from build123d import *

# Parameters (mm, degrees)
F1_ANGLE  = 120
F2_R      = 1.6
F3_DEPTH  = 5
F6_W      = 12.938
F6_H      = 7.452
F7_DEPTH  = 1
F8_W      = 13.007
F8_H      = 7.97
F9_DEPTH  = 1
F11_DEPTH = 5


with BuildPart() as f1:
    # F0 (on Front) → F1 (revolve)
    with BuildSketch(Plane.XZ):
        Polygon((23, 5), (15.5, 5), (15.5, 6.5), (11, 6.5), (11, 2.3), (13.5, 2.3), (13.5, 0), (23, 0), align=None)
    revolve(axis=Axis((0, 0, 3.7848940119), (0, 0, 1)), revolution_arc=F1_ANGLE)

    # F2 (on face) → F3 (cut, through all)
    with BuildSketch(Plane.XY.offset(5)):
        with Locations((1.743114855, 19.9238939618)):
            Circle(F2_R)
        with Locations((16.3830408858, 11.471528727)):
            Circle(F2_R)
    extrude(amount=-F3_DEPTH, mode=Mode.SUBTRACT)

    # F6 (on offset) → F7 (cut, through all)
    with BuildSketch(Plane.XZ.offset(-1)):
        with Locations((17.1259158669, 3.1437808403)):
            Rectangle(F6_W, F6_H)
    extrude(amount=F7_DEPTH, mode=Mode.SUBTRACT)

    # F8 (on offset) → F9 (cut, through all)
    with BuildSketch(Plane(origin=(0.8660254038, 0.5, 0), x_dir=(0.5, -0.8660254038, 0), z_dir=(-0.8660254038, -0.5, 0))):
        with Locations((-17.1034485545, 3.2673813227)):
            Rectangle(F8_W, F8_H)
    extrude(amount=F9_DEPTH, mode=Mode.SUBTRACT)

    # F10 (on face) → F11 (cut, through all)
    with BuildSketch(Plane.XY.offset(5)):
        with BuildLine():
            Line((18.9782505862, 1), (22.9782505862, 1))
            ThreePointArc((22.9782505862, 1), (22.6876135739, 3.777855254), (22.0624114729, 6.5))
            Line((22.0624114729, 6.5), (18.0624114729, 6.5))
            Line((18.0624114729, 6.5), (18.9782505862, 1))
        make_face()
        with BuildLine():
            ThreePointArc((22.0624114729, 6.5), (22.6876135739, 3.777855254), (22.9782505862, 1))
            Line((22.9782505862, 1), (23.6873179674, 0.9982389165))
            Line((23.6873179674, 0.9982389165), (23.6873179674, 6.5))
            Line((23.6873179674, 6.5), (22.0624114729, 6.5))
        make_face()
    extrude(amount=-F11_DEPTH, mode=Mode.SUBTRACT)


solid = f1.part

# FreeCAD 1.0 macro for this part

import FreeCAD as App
import Part
import Sketcher
from FreeCAD import Vector
Q = App.Units.Quantity

doc = App.newDocument("Part")
body = doc.addObject("PartDesign::Body", "Body")

# Sketch on XZ plane
sketch1 = body.newObject("Sketcher::SketchObject", "Sketch")
sketch1.AttachmentSupport = (doc.getObject("XZ_Plane"), [""])
sketch1.MapMode = "FlatFace"
sketch1.addGeometry([
    Part.LineSegment(Vector(23, 5, 0), Vector(15.5, 5, 0)),  # 0
    Part.LineSegment(Vector(15.5, 5, 0), Vector(15.5, 6.5, 0)),  # 1
    Part.LineSegment(Vector(15.5, 6.5, 0), Vector(11, 6.5, 0)),  # 2
    Part.LineSegment(Vector(11, 6.5, 0), Vector(11, 2.3, 0)),  # 3
    Part.LineSegment(Vector(11, 2.3, 0), Vector(13.5, 2.3, 0)),  # 4
    Part.LineSegment(Vector(13.5, 2.3, 0), Vector(13.5, 0, 0)),  # 5
    Part.LineSegment(Vector(13.5, 0, 0), Vector(23, 0, 0)),  # 6
    Part.LineSegment(Vector(23, 0, 0), Vector(23, 5, 0)),  # 7
], False)
sketch1.addConstraint([
    Sketcher.Constraint("Coincident", 0, 2, 1, 1),
    Sketcher.Constraint("Coincident", 1, 2, 2, 1),
    Sketcher.Constraint("Coincident", 2, 2, 3, 1),
    Sketcher.Constraint("Coincident", 3, 2, 4, 1),
    Sketcher.Constraint("Coincident", 4, 2, 5, 1),
    Sketcher.Constraint("Coincident", 5, 2, 6, 1),
    Sketcher.Constraint("Coincident", 6, 2, 7, 1),
    Sketcher.Constraint("Coincident", 7, 2, 0, 1),
    Sketcher.Constraint("Horizontal", 0),
    Sketcher.Constraint("Vertical", 1),
    Sketcher.Constraint("Horizontal", 2),
    Sketcher.Constraint("Vertical", 3),
    Sketcher.Constraint("Horizontal", 4),
    Sketcher.Constraint("Vertical", 5),
    Sketcher.Constraint("Horizontal", 6),
    Sketcher.Constraint("Vertical", 7),
    Sketcher.Constraint("PointOnObject", 5, 2, -1),
    Sketcher.Constraint("DistanceY", 7, 1, 7, 2, Q("5 mm")),
    Sketcher.Constraint("DistanceX", 0, 2, 0, 1, Q("7.5 mm")),
    Sketcher.Constraint("DistanceX", 2, 2, 2, 1, Q("4.5 mm")),
    Sketcher.Constraint("DistanceX", 4, 1, 4, 2, Q("2.5 mm")),
    Sketcher.Constraint("DistanceY", 1, 1, 1, 2, Q("1.5 mm")),
    Sketcher.Constraint("DistanceY", 3, 2, 3, 1, Q("4.2 mm")),
    Sketcher.Constraint("DistanceX", -1, 1, 2, 2, Q("11 mm")),
])
revolution = body.newObject("PartDesign::Revolution", "Revolution")
revolution.Profile = sketch1
revolution.ReferenceAxis = (sketch1, ["V_Axis"])
revolution.Angle = 120

# Sketch on XY plane
sketch2 = body.newObject("Sketcher::SketchObject", "Sketch001")
sketch2.AttachmentSupport = (doc.getObject("XY_Plane"), [""])
sketch2.MapMode = "FlatFace"
sketch2.AttachmentOffset = App.Placement(Vector(0, 0, 5), App.Rotation())
sketch2.addGeometry([
    Part.Circle(Vector(1.7, 19.9, 0), Vector(0, 0, 1), 1.6),
    Part.Circle(Vector(16.4, 11.5, 0), Vector(0, 0, 1), 1.6),
], False)
sketch2.addConstraint([
    Sketcher.Constraint("Equal", 0, 1),
    Sketcher.Constraint("Diameter", 0, Q("3.2 mm")),
    Sketcher.Constraint("DistanceX", -1, 1, 1, 3, Q("16.383041 mm")),
    Sketcher.Constraint("DistanceY", -1, 1, 1, 3, Q("11.471529 mm")),
    Sketcher.Constraint("DistanceX", -1, 1, 0, 3, Q("1.743115 mm")),
    Sketcher.Constraint("DistanceY", -1, 1, 0, 3, Q("19.923894 mm")),
])
pocket1 = body.newObject("PartDesign::Pocket", "Pocket")
pocket1.Profile = sketch2
pocket1.Type = "ThroughAll"

# Sketch on XZ plane
sketch3 = body.newObject("Sketcher::SketchObject", "Sketch002")
sketch3.AttachmentSupport = (doc.getObject("XZ_Plane"), [""])
sketch3.MapMode = "FlatFace"
sketch3.AttachmentOffset = App.Placement(Vector(0, 0, -1), App.Rotation())
sketch3.addGeometry([
    Part.LineSegment(Vector(11, 7, 0), Vector(11, -1, 0)),
    Part.LineSegment(Vector(11, -1, 0), Vector(24, -1, 0)),
    Part.LineSegment(Vector(24, -1, 0), Vector(24, 7, 0)),
    Part.LineSegment(Vector(24, 7, 0), Vector(11, 7, 0)),
], False)
sketch3.addConstraint([
    Sketcher.Constraint("Coincident", 0, 2, 1, 1),
    Sketcher.Constraint("Coincident", 1, 2, 2, 1),
    Sketcher.Constraint("Coincident", 2, 2, 3, 1),
    Sketcher.Constraint("Coincident", 3, 2, 0, 1),
    Sketcher.Constraint("Vertical", 0),
    Sketcher.Constraint("Horizontal", 1),
    Sketcher.Constraint("Vertical", 2),
    Sketcher.Constraint("Horizontal", 3),
    Sketcher.Constraint("DistanceX", 1, 1, 1, 2, Q("12.938 mm")),
    Sketcher.Constraint("DistanceY", 0, 2, 0, 1, Q("7.452 mm")),
    Sketcher.Constraint("DistanceY", 0, 2, -1, 1, Q("0.582219 mm")),
    Sketcher.Constraint("DistanceX", -1, 1, 0, 2, Q("10.656916 mm")),
])
pocket2 = body.newObject("PartDesign::Pocket", "Pocket001")
pocket2.Profile = sketch3
pocket2.Type = "ThroughAll"
pocket2.Reversed = True

# Sketch on an angled plane
sketch4 = body.newObject("Sketcher::SketchObject", "Sketch003")
sketch4.Placement = App.Placement(Vector(0.866025, 0.5, 0), App.Rotation(Vector(0.5, -0.866025404, 0), Vector(0, 0, 1), Vector(-0.866025404, -0.5, 0), "ZXY"))
sketch4.addGeometry([
    Part.LineSegment(Vector(-24, 7, 0), Vector(-24, -1, 0)),
    Part.LineSegment(Vector(-24, -1, 0), Vector(-11, -1, 0)),
    Part.LineSegment(Vector(-11, -1, 0), Vector(-11, 7, 0)),
    Part.LineSegment(Vector(-11, 7, 0), Vector(-24, 7, 0)),
], False)
sketch4.addConstraint([
    Sketcher.Constraint("Coincident", 0, 2, 1, 1),
    Sketcher.Constraint("Coincident", 1, 2, 2, 1),
    Sketcher.Constraint("Coincident", 2, 2, 3, 1),
    Sketcher.Constraint("Coincident", 3, 2, 0, 1),
    Sketcher.Constraint("Vertical", 0),
    Sketcher.Constraint("Horizontal", 1),
    Sketcher.Constraint("Vertical", 2),
    Sketcher.Constraint("Horizontal", 3),
    Sketcher.Constraint("DistanceY", 0, 2, 0, 1, Q("7.97 mm")),
    Sketcher.Constraint("DistanceX", 1, 1, 1, 2, Q("13.007 mm")),
    Sketcher.Constraint("DistanceX", 0, 2, -1, 1, Q("23.606949 mm")),
    Sketcher.Constraint("DistanceY", 0, 2, -1, 1, Q("0.717619 mm")),
])
pocket3 = body.newObject("PartDesign::Pocket", "Pocket002")
pocket3.Profile = sketch4
pocket3.Type = "ThroughAll"
pocket3.Reversed = True

# Sketch on XY plane
sketch5 = body.newObject("Sketcher::SketchObject", "Sketch004")
sketch5.AttachmentSupport = (doc.getObject("XY_Plane"), [""])
sketch5.MapMode = "FlatFace"
sketch5.AttachmentOffset = App.Placement(Vector(0, 0, 5), App.Rotation())
sketch5.addGeometry([
    Part.LineSegment(Vector(19, 1, 0), Vector(23, 1, 0)),  # 0
    Part.LineSegment(Vector(23, 1, 0), Vector(23.7, 1, 0)),  # 1
    Part.LineSegment(Vector(23.7, 1, 0), Vector(23.7, 6.5, 0)),  # 2
    Part.LineSegment(Vector(23.7, 6.5, 0), Vector(18.1, 6.5, 0)),  # 3
    Part.LineSegment(Vector(18.1, 6.5, 0), Vector(19, 1, 0)),  # 4
], False)
sketch5.addConstraint([
    Sketcher.Constraint("Coincident", 0, 2, 1, 1),
    Sketcher.Constraint("Coincident", 1, 2, 2, 1),
    Sketcher.Constraint("Coincident", 2, 2, 3, 1),
    Sketcher.Constraint("Coincident", 3, 2, 4, 1),
    Sketcher.Constraint("Coincident", 4, 2, 0, 1),
    Sketcher.Constraint("Horizontal", 0),
    Sketcher.Constraint("Vertical", 2),
    Sketcher.Constraint("Horizontal", 3),
    Sketcher.Constraint("DistanceX", 0, 1, 0, 2, Q("4 mm")),
    Sketcher.Constraint("DistanceY", -1, 1, 0, 2, Q("1 mm")),
    Sketcher.Constraint("DistanceY", -1, 1, 2, 2, Q("6.5 mm")),
    Sketcher.Constraint("DistanceY", 2, 1, 2, 2, Q("5.501761 mm")),
    Sketcher.Constraint("Distance", 1, Q("0.70907 mm")),
    Sketcher.Constraint("Distance", 4, Q("5.57573 mm")),
    Sketcher.Constraint("DistanceX", -1, 1, 0, 2, Q("22.978251 mm")),
])
pocket4 = body.newObject("PartDesign::Pocket", "Pocket003")
pocket4.Profile = sketch5
pocket4.Type = "ThroughAll"

doc.recompute()
